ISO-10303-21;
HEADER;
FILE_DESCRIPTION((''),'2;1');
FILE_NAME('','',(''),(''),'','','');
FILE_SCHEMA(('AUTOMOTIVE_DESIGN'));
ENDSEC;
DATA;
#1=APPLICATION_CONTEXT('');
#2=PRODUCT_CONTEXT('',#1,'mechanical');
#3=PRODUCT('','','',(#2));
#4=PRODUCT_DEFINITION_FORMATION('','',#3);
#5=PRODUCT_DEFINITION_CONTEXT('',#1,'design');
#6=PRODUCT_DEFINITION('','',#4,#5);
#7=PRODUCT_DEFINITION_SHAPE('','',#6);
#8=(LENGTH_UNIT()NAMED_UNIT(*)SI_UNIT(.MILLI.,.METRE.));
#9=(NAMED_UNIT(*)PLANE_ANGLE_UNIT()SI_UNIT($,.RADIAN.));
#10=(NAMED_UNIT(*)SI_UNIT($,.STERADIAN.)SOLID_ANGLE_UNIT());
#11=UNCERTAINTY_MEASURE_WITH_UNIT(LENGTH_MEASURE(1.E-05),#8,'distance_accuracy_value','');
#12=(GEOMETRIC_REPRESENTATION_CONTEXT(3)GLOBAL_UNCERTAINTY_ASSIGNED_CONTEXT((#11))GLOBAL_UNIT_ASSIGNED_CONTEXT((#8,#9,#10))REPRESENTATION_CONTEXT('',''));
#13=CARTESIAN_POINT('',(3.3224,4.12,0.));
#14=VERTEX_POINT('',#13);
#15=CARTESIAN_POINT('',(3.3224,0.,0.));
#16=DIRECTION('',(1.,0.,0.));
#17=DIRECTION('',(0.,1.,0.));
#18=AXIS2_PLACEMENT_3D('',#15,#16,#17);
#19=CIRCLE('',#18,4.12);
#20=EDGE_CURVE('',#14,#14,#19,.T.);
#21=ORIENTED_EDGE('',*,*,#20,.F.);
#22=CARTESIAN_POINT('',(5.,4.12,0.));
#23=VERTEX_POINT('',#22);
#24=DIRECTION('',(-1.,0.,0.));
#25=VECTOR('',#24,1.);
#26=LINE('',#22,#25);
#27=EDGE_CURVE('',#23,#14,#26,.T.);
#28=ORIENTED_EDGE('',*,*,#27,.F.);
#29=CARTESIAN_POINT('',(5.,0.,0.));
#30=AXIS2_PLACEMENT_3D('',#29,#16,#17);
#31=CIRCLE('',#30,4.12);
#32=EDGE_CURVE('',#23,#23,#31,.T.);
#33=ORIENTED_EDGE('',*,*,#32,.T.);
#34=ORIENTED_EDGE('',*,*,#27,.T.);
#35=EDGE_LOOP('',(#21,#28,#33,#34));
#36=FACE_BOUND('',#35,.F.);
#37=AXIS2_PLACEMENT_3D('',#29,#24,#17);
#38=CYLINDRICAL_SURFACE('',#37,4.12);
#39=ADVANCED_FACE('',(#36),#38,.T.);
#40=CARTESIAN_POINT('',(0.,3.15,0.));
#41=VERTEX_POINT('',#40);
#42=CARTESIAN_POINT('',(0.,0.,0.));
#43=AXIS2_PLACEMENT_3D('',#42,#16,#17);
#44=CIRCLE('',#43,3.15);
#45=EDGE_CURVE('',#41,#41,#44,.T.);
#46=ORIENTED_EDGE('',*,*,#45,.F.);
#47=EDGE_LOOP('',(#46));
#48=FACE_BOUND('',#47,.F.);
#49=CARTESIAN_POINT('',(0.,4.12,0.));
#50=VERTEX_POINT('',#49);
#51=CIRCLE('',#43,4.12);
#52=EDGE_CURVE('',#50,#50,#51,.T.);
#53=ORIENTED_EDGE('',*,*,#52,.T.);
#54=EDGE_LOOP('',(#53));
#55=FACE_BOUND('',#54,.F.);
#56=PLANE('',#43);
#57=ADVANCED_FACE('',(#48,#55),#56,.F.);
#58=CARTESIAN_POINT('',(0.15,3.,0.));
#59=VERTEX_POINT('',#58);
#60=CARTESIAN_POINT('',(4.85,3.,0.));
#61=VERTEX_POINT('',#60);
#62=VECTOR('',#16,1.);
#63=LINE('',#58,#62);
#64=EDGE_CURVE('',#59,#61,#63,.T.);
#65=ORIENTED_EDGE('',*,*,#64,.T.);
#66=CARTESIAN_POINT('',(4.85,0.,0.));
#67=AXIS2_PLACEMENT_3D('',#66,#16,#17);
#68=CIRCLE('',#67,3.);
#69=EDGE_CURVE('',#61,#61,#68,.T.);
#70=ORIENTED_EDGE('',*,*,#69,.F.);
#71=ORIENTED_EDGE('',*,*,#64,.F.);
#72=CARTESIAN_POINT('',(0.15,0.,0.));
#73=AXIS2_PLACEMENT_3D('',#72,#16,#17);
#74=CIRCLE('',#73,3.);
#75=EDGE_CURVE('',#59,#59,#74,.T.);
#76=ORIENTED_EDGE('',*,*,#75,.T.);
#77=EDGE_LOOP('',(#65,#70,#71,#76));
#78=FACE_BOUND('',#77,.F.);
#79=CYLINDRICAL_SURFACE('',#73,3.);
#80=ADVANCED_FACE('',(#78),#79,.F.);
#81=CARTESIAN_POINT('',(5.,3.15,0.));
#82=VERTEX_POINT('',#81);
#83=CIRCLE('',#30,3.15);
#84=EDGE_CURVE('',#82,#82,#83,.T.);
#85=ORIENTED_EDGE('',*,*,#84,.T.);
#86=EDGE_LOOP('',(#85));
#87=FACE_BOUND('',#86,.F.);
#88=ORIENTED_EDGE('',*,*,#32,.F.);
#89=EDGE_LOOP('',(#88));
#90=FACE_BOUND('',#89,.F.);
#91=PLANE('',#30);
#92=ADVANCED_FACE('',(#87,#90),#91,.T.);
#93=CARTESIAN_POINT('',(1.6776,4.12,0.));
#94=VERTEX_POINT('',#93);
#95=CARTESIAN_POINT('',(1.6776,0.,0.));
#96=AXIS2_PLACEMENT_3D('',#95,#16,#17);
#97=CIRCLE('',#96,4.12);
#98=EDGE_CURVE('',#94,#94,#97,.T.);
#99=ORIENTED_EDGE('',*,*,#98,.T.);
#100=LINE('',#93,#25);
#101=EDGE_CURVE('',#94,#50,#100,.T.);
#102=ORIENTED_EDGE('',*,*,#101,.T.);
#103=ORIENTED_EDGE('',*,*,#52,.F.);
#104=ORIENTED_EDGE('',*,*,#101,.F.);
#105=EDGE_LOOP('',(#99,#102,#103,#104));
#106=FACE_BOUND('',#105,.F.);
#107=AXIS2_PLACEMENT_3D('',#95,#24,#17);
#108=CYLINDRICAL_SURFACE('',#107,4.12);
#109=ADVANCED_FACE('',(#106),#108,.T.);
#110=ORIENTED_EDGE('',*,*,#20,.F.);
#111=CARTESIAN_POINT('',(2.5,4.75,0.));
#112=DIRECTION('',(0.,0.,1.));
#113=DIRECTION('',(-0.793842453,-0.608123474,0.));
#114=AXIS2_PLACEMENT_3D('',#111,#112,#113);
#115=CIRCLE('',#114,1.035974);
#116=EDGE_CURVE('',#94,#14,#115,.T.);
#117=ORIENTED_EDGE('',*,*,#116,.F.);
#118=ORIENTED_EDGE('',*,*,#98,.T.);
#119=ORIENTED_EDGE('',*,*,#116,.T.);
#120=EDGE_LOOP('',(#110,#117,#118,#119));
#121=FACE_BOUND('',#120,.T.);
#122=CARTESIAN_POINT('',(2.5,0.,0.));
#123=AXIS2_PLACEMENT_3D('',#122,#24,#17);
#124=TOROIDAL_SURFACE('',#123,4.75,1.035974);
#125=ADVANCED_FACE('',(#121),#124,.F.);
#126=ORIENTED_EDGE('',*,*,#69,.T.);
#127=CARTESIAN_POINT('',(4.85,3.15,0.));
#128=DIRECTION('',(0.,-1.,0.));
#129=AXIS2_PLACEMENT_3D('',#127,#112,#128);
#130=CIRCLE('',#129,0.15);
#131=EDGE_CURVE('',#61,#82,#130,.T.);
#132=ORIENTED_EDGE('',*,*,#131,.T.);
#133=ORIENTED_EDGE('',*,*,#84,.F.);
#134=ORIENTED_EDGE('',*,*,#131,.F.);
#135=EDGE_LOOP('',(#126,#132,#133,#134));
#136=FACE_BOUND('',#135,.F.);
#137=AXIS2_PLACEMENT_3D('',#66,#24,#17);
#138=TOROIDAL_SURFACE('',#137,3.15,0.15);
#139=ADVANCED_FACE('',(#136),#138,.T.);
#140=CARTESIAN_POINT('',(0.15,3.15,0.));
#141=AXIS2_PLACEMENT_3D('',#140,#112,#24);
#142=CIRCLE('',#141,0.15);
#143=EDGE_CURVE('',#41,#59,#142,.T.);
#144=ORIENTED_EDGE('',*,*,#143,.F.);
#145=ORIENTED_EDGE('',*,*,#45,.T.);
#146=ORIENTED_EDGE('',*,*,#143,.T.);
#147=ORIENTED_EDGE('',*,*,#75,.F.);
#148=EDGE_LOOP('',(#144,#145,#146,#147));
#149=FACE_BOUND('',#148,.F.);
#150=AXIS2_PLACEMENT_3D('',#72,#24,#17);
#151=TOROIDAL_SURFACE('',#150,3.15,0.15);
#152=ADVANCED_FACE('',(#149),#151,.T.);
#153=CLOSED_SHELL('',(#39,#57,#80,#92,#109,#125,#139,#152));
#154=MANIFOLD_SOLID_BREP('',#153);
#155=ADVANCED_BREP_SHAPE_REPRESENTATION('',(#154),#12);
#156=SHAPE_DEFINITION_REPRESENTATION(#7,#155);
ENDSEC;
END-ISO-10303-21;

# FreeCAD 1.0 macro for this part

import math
import FreeCAD as App
import Part
import Sketcher
from FreeCAD import Vector

doc = App.newDocument("Part")
params = doc.addObject("Spreadsheet::Sheet", "Params")
for row, (alias, value) in enumerate([
    ("sketch1_radius", "0.15 mm"),
    ("sketch1_width", "4.7 mm"),
    ("sketch1_height", "0.97 mm"),
    ("revolution_angle", "360 deg"),
], start=1):
    params.set(f"A{row}", alias)
    params.set(f"B{row}", "=" + value)
    params.setAlias(f"B{row}", alias)

body = doc.addObject("PartDesign::Body", "Body")

sketch1 = doc.addObject("Sketcher::SketchObject", "Sketch")
body.addObject(sketch1)
sketch1.AttachmentSupport = (doc.XY_Plane, [""])
sketch1.MapMode = "FlatFace"
sketch1.addGeometry([
    Part.LineSegment(Vector(0, 4.12, 0), Vector(0, 3.15, 0)),
    Part.ArcOfCircle(Part.Circle(Vector(0.15, 3.15, 0), Vector(0, 0, 1), 0.15), math.radians(180), math.radians(270)),
    Part.LineSegment(Vector(0.15, 3, 0), Vector(4.85, 3, 0)),
    Part.ArcOfCircle(Part.Circle(Vector(4.85, 3.15, 0), Vector(0, 0, 1), 0.15), math.radians(-90), math.radians(0)),
    Part.LineSegment(Vector(5, 3.15, 0), Vector(5, 4.12, 0)),
    Part.LineSegment(Vector(5, 4.12, 0), Vector(3.32, 4.12, 0)),
    Part.ArcOfCircle(Part.Circle(Vector(2.5, 4.75, 0), Vector(0, 0, 1), 1.04), math.radians(-143), math.radians(-37)),
    Part.LineSegment(Vector(1.68, 4.12, 0), Vector(0, 4.12, 0)),
], False)
sketch1.addConstraint([
    Sketcher.Constraint("Tangent", 0, 2, 1, 1),
    Sketcher.Constraint("Tangent", 1, 2, 2, 1),
    Sketcher.Constraint("Tangent", 2, 2, 3, 1),
    Sketcher.Constraint("Tangent", 3, 2, 4, 1),
    Sketcher.Constraint("Coincident", 4, 2, 5, 1),
    Sketcher.Constraint("Coincident", 5, 2, 6, 2),
    Sketcher.Constraint("Coincident", 6, 1, 7, 1),
    Sketcher.Constraint("Coincident", 7, 2, 0, 1),
    Sketcher.Constraint("Vertical", 0),
    Sketcher.Constraint("Horizontal", 2),
    Sketcher.Constraint("Vertical", 4),
    Sketcher.Constraint("Horizontal", 5),
    Sketcher.Constraint("Horizontal", 7),
    Sketcher.Constraint("Equal", 1, 3),
    Sketcher.Constraint("PointOnObject", 0, 2, -2),
    Sketcher.Constraint("Horizontal", 5, 2, 6, 1),
    Sketcher.Constraint("Equal", 5, 7),
    Sketcher.Constraint("Radius", 1, 0.15),
    Sketcher.Constraint("DistanceX", 2, 1, 2, 2, 4.7),
    Sketcher.Constraint("DistanceY", -1, 1, 1, 2, 3.0),
    Sketcher.Constraint("Radius", 6, 1.036),
    Sketcher.Constraint("DistanceY", 0, 2, 0, 1, 0.97),
    Sketcher.Constraint("DistanceY", 3, 3, 6, 3, 1.6),
])
sketch1.setExpression("Constraints[17]", "Params.sketch1_radius")
sketch1.setExpression("Constraints[18]", "Params.sketch1_width")
sketch1.setExpression("Constraints[21]", "Params.sketch1_height")
revolution = doc.addObject("PartDesign::Revolution", "Revolution")
body.addObject(revolution)
revolution.Profile = sketch1
revolution.ReferenceAxis = (sketch1, ["H_Axis"])
revolution.setExpression("Angle", "Params.revolution_angle")

doc.recompute()
